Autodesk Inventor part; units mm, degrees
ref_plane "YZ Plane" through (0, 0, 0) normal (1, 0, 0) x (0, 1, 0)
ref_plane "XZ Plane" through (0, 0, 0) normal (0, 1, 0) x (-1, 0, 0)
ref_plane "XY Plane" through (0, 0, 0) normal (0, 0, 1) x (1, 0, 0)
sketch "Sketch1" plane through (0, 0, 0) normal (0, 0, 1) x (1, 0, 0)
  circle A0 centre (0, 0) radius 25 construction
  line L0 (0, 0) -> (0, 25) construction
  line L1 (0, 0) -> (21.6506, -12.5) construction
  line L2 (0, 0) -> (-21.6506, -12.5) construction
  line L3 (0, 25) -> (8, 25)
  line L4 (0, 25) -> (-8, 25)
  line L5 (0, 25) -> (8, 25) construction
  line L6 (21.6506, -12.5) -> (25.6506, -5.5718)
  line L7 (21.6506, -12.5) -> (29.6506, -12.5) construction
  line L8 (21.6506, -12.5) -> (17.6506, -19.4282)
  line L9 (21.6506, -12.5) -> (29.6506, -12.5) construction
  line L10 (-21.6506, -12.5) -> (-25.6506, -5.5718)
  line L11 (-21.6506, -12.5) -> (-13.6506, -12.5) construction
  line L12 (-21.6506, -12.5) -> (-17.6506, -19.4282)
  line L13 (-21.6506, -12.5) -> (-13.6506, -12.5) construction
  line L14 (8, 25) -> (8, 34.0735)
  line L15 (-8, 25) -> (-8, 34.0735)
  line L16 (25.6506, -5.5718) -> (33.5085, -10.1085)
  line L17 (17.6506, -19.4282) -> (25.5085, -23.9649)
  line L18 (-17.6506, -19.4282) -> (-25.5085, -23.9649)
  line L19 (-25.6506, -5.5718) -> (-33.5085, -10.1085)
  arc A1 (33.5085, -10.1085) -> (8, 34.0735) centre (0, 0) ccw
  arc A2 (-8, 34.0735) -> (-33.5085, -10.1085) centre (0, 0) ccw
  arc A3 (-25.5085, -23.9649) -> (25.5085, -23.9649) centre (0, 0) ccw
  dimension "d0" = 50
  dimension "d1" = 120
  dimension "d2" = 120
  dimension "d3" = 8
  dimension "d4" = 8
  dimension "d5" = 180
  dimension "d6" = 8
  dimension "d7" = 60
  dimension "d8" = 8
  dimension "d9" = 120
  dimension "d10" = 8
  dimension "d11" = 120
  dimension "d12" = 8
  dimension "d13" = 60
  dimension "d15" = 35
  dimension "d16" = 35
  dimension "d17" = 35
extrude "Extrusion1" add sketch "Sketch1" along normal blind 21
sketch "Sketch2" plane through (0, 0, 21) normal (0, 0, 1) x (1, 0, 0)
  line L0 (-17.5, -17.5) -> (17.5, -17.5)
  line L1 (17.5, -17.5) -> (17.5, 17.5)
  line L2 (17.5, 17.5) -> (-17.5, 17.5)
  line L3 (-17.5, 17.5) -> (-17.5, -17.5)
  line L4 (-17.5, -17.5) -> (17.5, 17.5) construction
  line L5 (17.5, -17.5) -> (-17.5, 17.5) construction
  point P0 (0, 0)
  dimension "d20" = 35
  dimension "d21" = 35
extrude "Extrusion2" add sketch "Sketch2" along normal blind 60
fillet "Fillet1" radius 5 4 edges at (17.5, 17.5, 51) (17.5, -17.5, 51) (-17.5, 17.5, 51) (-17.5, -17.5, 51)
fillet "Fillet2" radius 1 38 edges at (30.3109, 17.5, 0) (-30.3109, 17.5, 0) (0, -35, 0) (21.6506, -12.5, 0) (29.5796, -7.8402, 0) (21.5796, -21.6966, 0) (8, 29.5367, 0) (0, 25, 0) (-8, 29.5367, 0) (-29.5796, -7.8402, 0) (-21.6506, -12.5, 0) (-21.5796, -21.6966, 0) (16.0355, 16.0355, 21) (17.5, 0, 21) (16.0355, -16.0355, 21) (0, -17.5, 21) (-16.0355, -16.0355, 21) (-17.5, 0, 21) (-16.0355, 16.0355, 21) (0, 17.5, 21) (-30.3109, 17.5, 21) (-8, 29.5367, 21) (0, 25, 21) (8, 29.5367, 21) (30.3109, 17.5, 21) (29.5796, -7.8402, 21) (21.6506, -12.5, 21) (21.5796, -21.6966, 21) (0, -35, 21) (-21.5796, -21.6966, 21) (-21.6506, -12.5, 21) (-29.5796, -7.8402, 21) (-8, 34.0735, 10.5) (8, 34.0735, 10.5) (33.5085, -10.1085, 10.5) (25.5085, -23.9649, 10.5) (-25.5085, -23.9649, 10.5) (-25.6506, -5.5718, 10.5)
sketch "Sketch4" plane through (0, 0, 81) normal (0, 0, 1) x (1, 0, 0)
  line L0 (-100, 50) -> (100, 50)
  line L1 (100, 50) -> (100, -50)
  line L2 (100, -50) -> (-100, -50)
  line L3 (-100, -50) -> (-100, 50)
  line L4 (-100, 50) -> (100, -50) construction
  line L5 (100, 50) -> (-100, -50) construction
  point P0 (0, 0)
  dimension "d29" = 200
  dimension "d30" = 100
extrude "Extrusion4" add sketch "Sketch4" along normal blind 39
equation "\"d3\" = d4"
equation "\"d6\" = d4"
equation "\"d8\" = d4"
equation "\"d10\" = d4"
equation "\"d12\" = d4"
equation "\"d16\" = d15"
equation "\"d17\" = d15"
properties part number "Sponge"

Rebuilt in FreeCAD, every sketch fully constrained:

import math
import FreeCAD as App
import Part
import Sketcher

V = App.Vector
Q = App.Units.Quantity


def edges_at(feature, points):
    """Names of the edges that pass closest to the given points."""
    edges = feature.Shape.Edges
    near = lambda p: min(range(len(edges)), key=lambda i: edges[i].distToShape(Part.Vertex(*p))[0])
    return sorted({f"Edge{near(p) + 1}" for p in points})

doc = App.newDocument("Part")
body = doc.addObject("PartDesign::Body", "Body")

# Sketch on XY plane
sketch1 = body.newObject("Sketcher::SketchObject", "Sketch")
sketch1.AttachmentSupport = (doc.getObject("XY_Plane"), [""])
sketch1.MapMode = "FlatFace"
sketch1.addGeometry(Part.LineSegment(V(8, 25, 0), V(-8, 25, 0)), False)
sketch1.addGeometry(Part.LineSegment(V(-8, 25, 0), V(-8, 34.0735, 0)), False)
sketch1.addGeometry(Part.ArcOfCircle(Part.Circle(V(0, 0, 0), V(0, 0, 1), 35), math.radians(103.212962), math.radians(196.786973)), False)
sketch1.addGeometry(Part.LineSegment(V(-33.5085, -10.1085, 0), V(-25.6506, -5.5718, 0)), False)
sketch1.addGeometry(Part.LineSegment(V(-25.6506, -5.5718, 0), V(-17.6506, -19.4282, 0)), False)
sketch1.addGeometry(Part.LineSegment(V(-17.6506, -19.4282, 0), V(-25.5085, -23.9649, 0)), False)
sketch1.addGeometry(Part.ArcOfCircle(Part.Circle(V(0, 0, 0), V(0, 0, 1), 35), math.radians(-136.787083), math.radians(-43.212917)), False)
sketch1.addGeometry(Part.LineSegment(V(25.5085, -23.9649, 0), V(17.6506, -19.4282, 0)), False)
sketch1.addGeometry(Part.LineSegment(V(17.6506, -19.4282, 0), V(25.6506, -5.5718, 0)), False)
sketch1.addGeometry(Part.LineSegment(V(25.6506, -5.5718, 0), V(33.5085, -10.1085, 0)), False)
sketch1.addGeometry(Part.ArcOfCircle(Part.Circle(V(0, 0, 0), V(0, 0, 1), 35.000049), math.radians(-16.786973), math.radians(76.787038)), False)
sketch1.addGeometry(Part.LineSegment(V(8, 34.0735, 0), V(8, 25, 0)), False)
sketch1.addConstraint(Sketcher.Constraint("Coincident", 0, 2, 1, 1))
sketch1.addConstraint(Sketcher.Constraint("Coincident", 1, 2, 2, 1))
sketch1.addConstraint(Sketcher.Constraint("Coincident", 2, 2, 3, 1))
sketch1.addConstraint(Sketcher.Constraint("Coincident", 3, 2, 4, 1))
sketch1.addConstraint(Sketcher.Constraint("Coincident", 4, 2, 5, 1))
sketch1.addConstraint(Sketcher.Constraint("Coincident", 5, 2, 6, 1))
sketch1.addConstraint(Sketcher.Constraint("Coincident", 6, 2, 7, 1))
sketch1.addConstraint(Sketcher.Constraint("Coincident", 7, 2, 8, 1))
sketch1.addConstraint(Sketcher.Constraint("Coincident", 8, 2, 9, 1))
sketch1.addConstraint(Sketcher.Constraint("Coincident", 9, 2, 10, 1))
sketch1.addConstraint(Sketcher.Constraint("Coincident", 10, 2, 11, 1))
sketch1.addConstraint(Sketcher.Constraint("Coincident", 11, 2, 0, 1))
sketch1.addConstraint(Sketcher.Constraint("Horizontal", 0))
sketch1.addConstraint(Sketcher.Constraint("Vertical", 1))
sketch1.addConstraint(Sketcher.Constraint("Vertical", 11))
sketch1.addConstraint(Sketcher.Constraint("Coincident", 2, 3, -1, 1))
sketch1.addConstraint(Sketcher.Constraint("Coincident", 6, 3, -1, 1))
sketch1.addConstraint(Sketcher.Constraint("Coincident", 10, 3, -1, 1))
sketch1.addConstraint(Sketcher.Constraint("Equal", 2, 6))
sketch1.addConstraint(Sketcher.Constraint("Equal", 6, 10))
sketch1.addConstraint(Sketcher.Constraint("Symmetric", 4, 2, 7, 2, -2))
sketch1.addConstraint(Sketcher.Constraint("Symmetric", 3, 2, 8, 2, -2))
sketch1.addConstraint(Sketcher.Constraint("Perpendicular", 3, 4))
sketch1.addConstraint(Sketcher.Constraint("Perpendicular", 4, 5))
sketch1.addConstraint(Sketcher.Constraint("Perpendicular", 7, 8))
sketch1.addConstraint(Sketcher.Constraint("Perpendicular", 8, 9))
sketch1.addConstraint(Sketcher.Constraint("Horizontal", 1, 2, 10, 2))
sketch1.addConstraint(Sketcher.Constraint("Equal", 3, 5))
sketch1.addConstraint(Sketcher.Constraint("Radius", 2, 35.0))
sketch1.addConstraint(Sketcher.Constraint("Angle", 4, Q("-60 deg")))
sketch1.addConstraint(Sketcher.Constraint("DistanceX", 0, 2, -1, 1, 8.0))
sketch1.addConstraint(Sketcher.Constraint("DistanceX", 3, 2, 4, 2, 8.0))
sketch1.addConstraint(Sketcher.Constraint("DistanceY", -1, 1, 0, 2, 25.0))
sketch1.addConstraint(Sketcher.Constraint("DistanceX", 2, 2, 3, 2, 7.858))
pad1 = body.newObject("PartDesign::Pad", "Pad")
pad1.Profile = sketch1
pad1.Length = 21

# Sketch on XY plane
sketch2 = body.newObject("Sketcher::SketchObject", "Sketch001")
sketch2.AttachmentSupport = (doc.getObject("XY_Plane"), [""])
sketch2.MapMode = "FlatFace"
sketch2.AttachmentOffset = App.Placement(V(0, 0, 21), App.Rotation())
sketch2.addGeometry(Part.LineSegment(V(-17.5, 17.5, 0), V(-17.5, -17.5, 0)), False)
sketch2.addGeometry(Part.LineSegment(V(-17.5, -17.5, 0), V(17.5, -17.5, 0)), False)
sketch2.addGeometry(Part.LineSegment(V(17.5, -17.5, 0), V(17.5, 17.5, 0)), False)
sketch2.addGeometry(Part.LineSegment(V(17.5, 17.5, 0), V(-17.5, 17.5, 0)), False)
sketch2.addConstraint(Sketcher.Constraint("Coincident", 0, 2, 1, 1))
sketch2.addConstraint(Sketcher.Constraint("Coincident", 1, 2, 2, 1))
sketch2.addConstraint(Sketcher.Constraint("Coincident", 2, 2, 3, 1))
sketch2.addConstraint(Sketcher.Constraint("Coincident", 3, 2, 0, 1))
sketch2.addConstraint(Sketcher.Constraint("Vertical", 0))
sketch2.addConstraint(Sketcher.Constraint("Horizontal", 1))
sketch2.addConstraint(Sketcher.Constraint("Vertical", 2))
sketch2.addConstraint(Sketcher.Constraint("Horizontal", 3))
sketch2.addConstraint(Sketcher.Constraint("Symmetric", 0, 2, 2, 2, -1, 1))
sketch2.addConstraint(Sketcher.Constraint("Equal", 3, 0))
sketch2.addConstraint(Sketcher.Constraint("DistanceX", 1, 1, 1, 2, 35.0))
pad2 = body.newObject("PartDesign::Pad", "Pad001")
pad2.Profile = sketch2
pad2.Length = 60
doc.recompute()

fillet = body.newObject("PartDesign::Fillet", "Fillet")
fillet.Base = (pad2, edges_at(pad2, [
    (17.5, 17.5, 51),
    (17.5, -17.5, 51),
    (-17.5, 17.5, 51),
    (-17.5, -17.5, 51),
]))
fillet.Radius = 5
doc.recompute()

fillet2 = body.newObject("PartDesign::Fillet", "Fillet001")
fillet2.Base = (fillet, edges_at(fillet, [
    (30.311, 17.5, 0),
    (-30.311, 17.5, 0),
    (0, -35, 0),
    (21.651, -12.5, 0),
    (29.58, -7.84, 0),
    (21.58, -21.697, 0),
    (8, 29.537, 0),
    (0, 25, 0),
    (-8, 29.537, 0),
    (-29.58, -7.84, 0),
    (-21.651, -12.5, 0),
    (-21.58, -21.697, 0),
    (16.035, 16.035, 21),
    (17.5, 0, 21),
    (16.035, -16.035, 21),
    (0, -17.5, 21),
    (-16.035, -16.035, 21),
    (-17.5, 0, 21),
    (-16.035, 16.035, 21),
    (0, 17.5, 21),
    (-30.311, 17.5, 21),
    (-8, 29.537, 21),
    (0, 25, 21),
    (8, 29.537, 21),
    (30.311, 17.5, 21),
    (29.58, -7.84, 21),
    (21.651, -12.5, 21),
    (21.58, -21.697, 21),
    (0, -35, 21),
    (-21.58, -21.697, 21),
    (-21.651, -12.5, 21),
    (-29.58, -7.84, 21),
    (-8, 34.074, 10.5),
    (8, 34.074, 10.5),
    (33.508, -10.108, 10.5),
    (25.509, -23.965, 10.5),
    (-25.509, -23.965, 10.5),
    (-25.651, -5.572, 10.5),
]))
fillet2.Radius = 1

# Sketch on XY plane
sketch3 = body.newObject("Sketcher::SketchObject", "Sketch002")
sketch3.AttachmentSupport = (doc.getObject("XY_Plane"), [""])
sketch3.MapMode = "FlatFace"
sketch3.AttachmentOffset = App.Placement(V(0, 0, 81), App.Rotation())
sketch3.addGeometry(Part.LineSegment(V(100, 50, 0), V(-100, 50, 0)), False)
sketch3.addGeometry(Part.LineSegment(V(-100, 50, 0), V(-100, -50, 0)), False)
sketch3.addGeometry(Part.LineSegment(V(-100, -50, 0), V(100, -50, 0)), False)
sketch3.addGeometry(Part.LineSegment(V(100, -50, 0), V(100, 50, 0)), False)
sketch3.addConstraint(Sketcher.Constraint("Coincident", 0, 2, 1, 1))
sketch3.addConstraint(Sketcher.Constraint("Coincident", 1, 2, 2, 1))
sketch3.addConstraint(Sketcher.Constraint("Coincident", 2, 2, 3, 1))
sketch3.addConstraint(Sketcher.Constraint("Coincident", 3, 2, 0, 1))
sketch3.addConstraint(Sketcher.Constraint("Horizontal", 0))
sketch3.addConstraint(Sketcher.Constraint("Vertical", 1))
sketch3.addConstraint(Sketcher.Constraint("Horizontal", 2))
sketch3.addConstraint(Sketcher.Constraint("Vertical", 3))
sketch3.addConstraint(Sketcher.Constraint("Symmetric", 0, 2, 2, 2, -1, 1))
sketch3.addConstraint(Sketcher.Constraint("DistanceX", 0, 2, 0, 1, 200.0))
sketch3.addConstraint(Sketcher.Constraint("DistanceY", 1, 2, 1, 1, 100.0))
pad3 = body.newObject("PartDesign::Pad", "Pad002")
pad3.Profile = sketch3
pad3.Length = 39

doc.recompute()
